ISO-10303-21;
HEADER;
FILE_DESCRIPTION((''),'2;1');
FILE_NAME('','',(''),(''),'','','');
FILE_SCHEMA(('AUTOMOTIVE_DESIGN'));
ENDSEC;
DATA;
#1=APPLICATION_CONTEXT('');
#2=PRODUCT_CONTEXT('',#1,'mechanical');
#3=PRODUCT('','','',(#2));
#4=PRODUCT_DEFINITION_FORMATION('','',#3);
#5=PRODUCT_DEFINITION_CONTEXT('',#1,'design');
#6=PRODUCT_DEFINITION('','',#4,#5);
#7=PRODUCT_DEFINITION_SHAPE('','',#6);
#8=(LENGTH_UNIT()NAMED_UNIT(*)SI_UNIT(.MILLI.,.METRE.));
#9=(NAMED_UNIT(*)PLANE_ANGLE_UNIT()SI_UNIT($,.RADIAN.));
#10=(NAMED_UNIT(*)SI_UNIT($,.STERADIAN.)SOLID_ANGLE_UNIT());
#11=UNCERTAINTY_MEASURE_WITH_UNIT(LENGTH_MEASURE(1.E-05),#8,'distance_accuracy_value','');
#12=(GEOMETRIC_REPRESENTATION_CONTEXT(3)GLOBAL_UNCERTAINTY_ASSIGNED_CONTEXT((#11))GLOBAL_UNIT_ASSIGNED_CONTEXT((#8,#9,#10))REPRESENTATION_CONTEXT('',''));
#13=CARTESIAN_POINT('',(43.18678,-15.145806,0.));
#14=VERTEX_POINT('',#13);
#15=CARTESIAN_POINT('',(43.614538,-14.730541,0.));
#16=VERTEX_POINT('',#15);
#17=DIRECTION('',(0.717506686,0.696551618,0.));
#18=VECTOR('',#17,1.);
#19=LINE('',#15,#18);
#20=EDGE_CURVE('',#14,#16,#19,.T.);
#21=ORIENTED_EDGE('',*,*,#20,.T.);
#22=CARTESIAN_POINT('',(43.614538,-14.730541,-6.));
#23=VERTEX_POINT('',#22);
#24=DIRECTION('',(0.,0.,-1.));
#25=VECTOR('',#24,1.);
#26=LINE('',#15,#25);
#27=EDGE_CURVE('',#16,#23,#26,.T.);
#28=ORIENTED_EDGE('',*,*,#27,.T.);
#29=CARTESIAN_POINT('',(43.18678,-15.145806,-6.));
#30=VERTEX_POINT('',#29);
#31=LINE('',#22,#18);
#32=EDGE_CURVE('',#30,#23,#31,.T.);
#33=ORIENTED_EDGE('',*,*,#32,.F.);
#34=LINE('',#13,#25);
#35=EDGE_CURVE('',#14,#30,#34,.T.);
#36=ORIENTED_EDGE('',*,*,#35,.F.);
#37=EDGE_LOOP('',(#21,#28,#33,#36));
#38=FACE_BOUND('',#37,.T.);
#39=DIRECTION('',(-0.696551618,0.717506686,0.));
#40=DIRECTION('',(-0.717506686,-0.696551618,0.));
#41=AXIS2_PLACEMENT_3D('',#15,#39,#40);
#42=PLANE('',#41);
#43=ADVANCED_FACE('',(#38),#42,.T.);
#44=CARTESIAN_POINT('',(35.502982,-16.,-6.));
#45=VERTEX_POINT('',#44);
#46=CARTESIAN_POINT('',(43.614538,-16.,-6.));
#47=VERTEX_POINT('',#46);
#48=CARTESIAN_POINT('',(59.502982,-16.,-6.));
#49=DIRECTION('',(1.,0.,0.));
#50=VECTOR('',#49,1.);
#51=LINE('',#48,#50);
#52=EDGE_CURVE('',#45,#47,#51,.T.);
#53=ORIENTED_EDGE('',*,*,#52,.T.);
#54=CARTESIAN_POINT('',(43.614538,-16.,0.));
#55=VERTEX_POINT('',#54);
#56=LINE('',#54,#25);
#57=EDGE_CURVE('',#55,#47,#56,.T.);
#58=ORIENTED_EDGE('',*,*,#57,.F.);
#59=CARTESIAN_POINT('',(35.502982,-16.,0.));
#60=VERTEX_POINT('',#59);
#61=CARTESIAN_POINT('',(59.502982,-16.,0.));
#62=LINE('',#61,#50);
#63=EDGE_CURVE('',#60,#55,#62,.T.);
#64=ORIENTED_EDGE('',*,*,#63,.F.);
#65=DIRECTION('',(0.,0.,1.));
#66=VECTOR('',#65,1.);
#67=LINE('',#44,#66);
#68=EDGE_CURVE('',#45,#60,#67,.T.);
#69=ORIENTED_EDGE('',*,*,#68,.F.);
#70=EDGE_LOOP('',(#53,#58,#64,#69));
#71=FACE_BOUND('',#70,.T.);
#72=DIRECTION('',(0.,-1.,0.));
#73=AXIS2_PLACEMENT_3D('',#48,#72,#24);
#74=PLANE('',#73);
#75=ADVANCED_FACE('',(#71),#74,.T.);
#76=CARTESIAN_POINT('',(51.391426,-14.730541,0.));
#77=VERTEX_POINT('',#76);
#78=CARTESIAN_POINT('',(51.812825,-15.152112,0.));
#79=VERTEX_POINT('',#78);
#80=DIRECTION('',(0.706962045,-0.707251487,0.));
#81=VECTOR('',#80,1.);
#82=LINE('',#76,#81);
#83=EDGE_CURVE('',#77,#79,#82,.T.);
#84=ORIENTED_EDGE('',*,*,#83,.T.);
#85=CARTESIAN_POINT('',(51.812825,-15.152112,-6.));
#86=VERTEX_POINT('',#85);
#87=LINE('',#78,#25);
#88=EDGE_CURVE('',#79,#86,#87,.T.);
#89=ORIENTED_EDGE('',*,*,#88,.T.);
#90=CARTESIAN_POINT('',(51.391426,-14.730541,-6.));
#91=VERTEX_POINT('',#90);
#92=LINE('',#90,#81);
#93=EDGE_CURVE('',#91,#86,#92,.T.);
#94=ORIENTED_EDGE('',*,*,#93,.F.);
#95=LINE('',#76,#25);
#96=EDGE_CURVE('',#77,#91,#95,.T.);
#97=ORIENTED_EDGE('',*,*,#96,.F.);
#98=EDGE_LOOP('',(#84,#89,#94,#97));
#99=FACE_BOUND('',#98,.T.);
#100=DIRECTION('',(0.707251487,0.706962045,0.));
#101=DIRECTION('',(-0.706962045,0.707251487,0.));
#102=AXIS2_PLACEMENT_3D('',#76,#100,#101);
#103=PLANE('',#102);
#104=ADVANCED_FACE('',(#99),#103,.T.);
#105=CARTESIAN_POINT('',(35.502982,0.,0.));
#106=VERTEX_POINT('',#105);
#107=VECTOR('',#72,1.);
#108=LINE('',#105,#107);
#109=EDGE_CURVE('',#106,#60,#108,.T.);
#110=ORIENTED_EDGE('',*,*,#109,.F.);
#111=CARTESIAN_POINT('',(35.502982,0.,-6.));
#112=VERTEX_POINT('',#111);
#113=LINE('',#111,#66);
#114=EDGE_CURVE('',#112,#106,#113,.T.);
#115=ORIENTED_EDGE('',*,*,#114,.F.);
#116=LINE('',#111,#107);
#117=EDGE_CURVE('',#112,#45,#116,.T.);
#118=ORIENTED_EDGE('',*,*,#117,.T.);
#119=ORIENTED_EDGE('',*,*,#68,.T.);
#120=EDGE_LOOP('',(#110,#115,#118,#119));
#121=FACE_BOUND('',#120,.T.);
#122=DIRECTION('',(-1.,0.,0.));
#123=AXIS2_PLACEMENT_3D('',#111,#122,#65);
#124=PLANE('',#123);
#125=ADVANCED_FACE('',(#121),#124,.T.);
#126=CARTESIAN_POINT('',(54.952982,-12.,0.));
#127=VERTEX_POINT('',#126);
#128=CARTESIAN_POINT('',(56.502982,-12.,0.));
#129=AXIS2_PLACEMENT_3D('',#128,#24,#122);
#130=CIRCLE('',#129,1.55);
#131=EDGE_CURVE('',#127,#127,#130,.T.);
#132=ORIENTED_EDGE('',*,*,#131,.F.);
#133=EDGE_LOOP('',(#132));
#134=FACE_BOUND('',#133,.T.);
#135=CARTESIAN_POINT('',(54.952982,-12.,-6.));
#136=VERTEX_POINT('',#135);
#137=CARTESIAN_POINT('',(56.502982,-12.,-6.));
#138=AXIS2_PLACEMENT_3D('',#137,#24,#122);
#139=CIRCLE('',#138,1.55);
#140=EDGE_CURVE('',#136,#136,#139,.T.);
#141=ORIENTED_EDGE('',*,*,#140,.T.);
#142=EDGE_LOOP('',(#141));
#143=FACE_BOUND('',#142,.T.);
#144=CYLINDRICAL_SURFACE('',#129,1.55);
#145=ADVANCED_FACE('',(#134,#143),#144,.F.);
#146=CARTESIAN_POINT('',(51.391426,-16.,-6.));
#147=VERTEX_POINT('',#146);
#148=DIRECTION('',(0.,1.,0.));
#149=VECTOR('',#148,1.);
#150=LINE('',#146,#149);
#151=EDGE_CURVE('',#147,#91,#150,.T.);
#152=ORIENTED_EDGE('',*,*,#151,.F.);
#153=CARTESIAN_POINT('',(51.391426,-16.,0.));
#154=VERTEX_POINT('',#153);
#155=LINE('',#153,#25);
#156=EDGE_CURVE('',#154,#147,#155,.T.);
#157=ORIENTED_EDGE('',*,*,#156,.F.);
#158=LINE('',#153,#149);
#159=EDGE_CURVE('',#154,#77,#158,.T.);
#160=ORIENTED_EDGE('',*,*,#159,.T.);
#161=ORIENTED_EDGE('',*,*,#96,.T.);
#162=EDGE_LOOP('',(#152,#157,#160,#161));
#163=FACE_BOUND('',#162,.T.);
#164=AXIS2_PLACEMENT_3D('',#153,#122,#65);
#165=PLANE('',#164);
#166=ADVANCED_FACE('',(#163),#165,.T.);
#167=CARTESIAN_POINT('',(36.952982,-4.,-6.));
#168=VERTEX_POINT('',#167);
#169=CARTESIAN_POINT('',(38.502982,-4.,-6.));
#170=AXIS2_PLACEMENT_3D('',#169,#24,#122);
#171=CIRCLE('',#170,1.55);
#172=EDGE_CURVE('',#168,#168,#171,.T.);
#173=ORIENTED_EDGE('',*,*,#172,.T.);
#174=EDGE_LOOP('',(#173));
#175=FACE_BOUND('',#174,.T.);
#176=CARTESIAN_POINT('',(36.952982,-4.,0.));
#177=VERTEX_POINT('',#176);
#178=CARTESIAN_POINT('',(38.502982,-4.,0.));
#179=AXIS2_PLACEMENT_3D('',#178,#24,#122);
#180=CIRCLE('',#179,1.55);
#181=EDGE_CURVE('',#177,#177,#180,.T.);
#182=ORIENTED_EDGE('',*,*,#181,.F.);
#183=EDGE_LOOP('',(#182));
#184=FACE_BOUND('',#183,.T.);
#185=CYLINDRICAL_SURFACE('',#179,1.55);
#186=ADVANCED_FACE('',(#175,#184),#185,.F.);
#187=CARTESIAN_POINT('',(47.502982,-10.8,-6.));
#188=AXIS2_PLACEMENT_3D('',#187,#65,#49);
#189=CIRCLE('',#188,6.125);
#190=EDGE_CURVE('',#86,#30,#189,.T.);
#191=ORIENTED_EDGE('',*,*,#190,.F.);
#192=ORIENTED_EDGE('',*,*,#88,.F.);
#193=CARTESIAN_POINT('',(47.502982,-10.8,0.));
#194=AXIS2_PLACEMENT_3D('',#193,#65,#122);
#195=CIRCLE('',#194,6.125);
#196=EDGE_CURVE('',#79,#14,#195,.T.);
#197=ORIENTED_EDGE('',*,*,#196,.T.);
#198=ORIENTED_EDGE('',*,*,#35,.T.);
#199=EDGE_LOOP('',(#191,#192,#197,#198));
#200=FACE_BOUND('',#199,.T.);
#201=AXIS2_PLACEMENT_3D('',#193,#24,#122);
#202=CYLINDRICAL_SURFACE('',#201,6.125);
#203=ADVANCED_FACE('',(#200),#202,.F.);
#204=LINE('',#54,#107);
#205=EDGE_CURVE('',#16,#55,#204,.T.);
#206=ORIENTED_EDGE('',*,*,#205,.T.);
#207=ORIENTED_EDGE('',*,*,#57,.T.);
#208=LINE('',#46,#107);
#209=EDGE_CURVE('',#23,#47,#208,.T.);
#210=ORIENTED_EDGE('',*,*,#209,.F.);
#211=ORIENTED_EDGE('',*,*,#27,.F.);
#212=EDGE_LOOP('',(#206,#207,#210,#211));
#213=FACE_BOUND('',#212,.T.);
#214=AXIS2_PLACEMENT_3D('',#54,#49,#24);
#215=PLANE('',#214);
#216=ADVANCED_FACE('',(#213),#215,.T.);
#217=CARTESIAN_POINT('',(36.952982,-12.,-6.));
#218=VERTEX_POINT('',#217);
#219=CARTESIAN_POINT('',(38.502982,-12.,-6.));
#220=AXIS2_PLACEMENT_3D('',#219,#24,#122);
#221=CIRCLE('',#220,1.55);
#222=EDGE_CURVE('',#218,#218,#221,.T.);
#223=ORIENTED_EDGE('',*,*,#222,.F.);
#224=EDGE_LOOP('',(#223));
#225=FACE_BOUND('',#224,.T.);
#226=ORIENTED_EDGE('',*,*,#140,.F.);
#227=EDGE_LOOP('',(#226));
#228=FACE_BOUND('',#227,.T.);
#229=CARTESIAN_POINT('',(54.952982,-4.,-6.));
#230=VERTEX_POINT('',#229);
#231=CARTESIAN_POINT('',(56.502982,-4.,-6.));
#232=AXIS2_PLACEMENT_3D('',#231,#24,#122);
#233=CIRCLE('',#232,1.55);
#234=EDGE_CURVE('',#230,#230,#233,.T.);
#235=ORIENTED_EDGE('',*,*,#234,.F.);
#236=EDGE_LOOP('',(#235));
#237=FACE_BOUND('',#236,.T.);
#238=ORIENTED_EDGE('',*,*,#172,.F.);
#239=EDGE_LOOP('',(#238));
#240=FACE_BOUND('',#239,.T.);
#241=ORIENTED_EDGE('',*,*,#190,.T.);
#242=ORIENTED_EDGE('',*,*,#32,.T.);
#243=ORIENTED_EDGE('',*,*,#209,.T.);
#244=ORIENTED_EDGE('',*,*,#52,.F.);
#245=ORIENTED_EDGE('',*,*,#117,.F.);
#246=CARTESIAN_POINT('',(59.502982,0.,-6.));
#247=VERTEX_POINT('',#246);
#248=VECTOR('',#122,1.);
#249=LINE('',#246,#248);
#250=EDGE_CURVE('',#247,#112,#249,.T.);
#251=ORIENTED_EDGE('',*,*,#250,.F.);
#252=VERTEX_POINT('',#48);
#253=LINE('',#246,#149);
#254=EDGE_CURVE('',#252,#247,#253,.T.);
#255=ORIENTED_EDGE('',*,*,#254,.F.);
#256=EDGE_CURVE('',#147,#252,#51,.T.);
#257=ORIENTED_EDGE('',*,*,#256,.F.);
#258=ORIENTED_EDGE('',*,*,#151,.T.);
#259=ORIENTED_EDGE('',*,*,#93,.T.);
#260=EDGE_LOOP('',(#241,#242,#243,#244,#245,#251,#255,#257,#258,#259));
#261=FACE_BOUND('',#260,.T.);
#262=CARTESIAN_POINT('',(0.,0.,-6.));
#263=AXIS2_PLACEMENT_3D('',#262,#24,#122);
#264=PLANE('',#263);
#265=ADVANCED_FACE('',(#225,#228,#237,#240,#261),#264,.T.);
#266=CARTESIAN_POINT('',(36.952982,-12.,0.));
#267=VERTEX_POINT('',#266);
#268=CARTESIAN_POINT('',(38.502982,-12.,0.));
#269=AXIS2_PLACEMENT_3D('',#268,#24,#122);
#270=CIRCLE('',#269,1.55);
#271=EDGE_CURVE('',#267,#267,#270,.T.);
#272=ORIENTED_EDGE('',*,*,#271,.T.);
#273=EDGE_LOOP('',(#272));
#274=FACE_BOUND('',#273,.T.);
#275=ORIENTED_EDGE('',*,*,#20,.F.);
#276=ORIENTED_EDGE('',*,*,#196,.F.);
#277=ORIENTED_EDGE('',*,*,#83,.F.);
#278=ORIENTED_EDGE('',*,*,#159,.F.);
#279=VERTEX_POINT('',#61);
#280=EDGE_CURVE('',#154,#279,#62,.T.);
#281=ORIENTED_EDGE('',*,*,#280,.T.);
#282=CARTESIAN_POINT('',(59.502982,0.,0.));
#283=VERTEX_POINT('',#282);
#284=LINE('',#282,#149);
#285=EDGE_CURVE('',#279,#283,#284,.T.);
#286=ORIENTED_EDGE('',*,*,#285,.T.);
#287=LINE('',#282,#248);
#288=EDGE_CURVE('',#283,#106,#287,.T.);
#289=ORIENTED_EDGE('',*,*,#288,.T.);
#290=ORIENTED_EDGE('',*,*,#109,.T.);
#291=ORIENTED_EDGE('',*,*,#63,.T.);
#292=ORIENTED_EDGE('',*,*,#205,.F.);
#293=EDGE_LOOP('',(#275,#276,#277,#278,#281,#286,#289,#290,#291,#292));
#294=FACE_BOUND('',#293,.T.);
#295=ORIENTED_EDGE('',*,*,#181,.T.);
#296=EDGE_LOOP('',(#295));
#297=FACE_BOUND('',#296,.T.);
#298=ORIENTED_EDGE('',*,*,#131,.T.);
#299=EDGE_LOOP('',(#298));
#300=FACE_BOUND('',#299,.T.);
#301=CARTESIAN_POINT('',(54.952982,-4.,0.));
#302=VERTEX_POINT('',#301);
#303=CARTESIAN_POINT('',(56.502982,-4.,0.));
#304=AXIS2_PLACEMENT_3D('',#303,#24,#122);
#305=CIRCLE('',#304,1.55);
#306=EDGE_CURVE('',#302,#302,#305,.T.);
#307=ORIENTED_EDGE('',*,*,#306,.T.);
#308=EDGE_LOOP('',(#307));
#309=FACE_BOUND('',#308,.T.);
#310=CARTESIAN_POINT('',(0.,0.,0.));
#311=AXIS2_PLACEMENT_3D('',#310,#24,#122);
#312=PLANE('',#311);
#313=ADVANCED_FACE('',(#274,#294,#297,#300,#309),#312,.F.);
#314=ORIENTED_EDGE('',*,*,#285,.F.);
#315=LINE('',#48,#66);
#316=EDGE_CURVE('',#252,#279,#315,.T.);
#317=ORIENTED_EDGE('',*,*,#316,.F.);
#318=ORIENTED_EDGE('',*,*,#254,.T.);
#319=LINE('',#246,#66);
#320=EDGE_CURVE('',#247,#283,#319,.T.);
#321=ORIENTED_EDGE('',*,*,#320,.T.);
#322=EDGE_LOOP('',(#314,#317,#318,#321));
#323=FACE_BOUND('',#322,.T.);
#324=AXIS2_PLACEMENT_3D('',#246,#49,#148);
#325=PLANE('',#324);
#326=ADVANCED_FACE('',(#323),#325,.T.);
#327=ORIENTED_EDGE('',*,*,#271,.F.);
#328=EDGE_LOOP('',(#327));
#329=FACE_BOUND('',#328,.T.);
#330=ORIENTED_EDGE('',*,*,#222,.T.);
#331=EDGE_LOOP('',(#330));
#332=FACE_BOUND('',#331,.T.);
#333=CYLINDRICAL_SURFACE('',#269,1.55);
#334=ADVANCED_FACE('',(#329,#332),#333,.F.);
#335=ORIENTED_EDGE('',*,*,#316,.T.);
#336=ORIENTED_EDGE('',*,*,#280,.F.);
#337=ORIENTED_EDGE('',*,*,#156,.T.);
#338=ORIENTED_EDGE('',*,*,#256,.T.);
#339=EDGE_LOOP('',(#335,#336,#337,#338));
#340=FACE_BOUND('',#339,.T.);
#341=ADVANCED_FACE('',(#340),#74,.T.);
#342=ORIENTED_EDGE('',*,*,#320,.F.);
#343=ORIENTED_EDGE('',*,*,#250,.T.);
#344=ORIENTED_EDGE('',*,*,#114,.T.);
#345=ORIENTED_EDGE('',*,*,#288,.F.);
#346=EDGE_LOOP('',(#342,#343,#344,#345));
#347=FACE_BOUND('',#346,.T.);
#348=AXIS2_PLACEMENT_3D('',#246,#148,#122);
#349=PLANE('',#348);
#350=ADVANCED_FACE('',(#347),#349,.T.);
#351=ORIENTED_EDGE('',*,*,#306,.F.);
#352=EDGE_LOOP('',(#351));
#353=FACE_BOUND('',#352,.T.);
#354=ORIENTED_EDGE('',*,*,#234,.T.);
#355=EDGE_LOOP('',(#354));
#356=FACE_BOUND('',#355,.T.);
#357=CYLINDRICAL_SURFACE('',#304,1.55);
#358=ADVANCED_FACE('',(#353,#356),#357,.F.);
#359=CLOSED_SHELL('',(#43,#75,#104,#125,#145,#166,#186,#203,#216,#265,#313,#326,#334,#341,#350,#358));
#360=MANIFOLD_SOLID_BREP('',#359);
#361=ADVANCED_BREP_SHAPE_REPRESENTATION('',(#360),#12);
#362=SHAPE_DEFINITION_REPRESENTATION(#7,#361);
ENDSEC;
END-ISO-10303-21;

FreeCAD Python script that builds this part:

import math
import FreeCAD as App
import Part
import Sketcher

V = App.Vector


def add_polygon(sketch, points):
    """Adds a closed chain of lines whose ends are joined by coincident constraints."""
    first, n = sketch.GeometryCount, len(points)
    for a, b in zip(points, points[1:] + points[:1]):
        sketch.addGeometry(Part.LineSegment(App.Vector(*a, 0), App.Vector(*b, 0)), False)
    for i in range(n):
        sketch.addConstraint(Sketcher.Constraint("Coincident", first + i, 2, first + (i + 1) % n, 1))

doc = App.newDocument("Part")
body = doc.addObject("PartDesign::Body", "Body")

sketch1 = body.newObject("Sketcher::SketchObject", "Sketch")
sketch1.AttachmentSupport = (doc.getObject("XY_Plane"), [""])
sketch1.MapMode = "FlatFace"
add_polygon(sketch1, [(36, 0), (36, -16), (60, -16), (60, 0)])
sketch1.addConstraint(Sketcher.Constraint("Vertical", 0))
sketch1.addConstraint(Sketcher.Constraint("Horizontal", 1))
sketch1.addConstraint(Sketcher.Constraint("Vertical", 2))
sketch1.addConstraint(Sketcher.Constraint("Horizontal", 3))
sketch1.addConstraint(Sketcher.Constraint("PointOnObject", 2, 2, -1))
sketch1.addConstraint(Sketcher.Constraint("DistanceX", 1, 1, 1, 2, 24.0))
sketch1.addConstraint(Sketcher.Constraint("DistanceY", 0, 2, 0, 1, 16.0))
sketch1.addConstraint(Sketcher.Constraint("DistanceX", -1, 1, 0, 2, 35.502982))
pad1 = body.newObject("PartDesign::Pad", "Pad")
pad1.Profile = sketch1
pad1.Length = 6
pad1.Reversed = True

sketch2 = body.newObject("Sketcher::SketchObject", "Sketch001")
sketch2.AttachmentSupport = (doc.getObject("XY_Plane"), [""])
sketch2.MapMode = "FlatFace"
sketch2.AttachmentOffset = App.Placement(V(0, 0, -6), App.Rotation())
sketch2.addGeometry(Part.LineSegment(V(43.61, -14.73, 0), V(43.61, -16, 0)), False)
sketch2.addGeometry(Part.LineSegment(V(43.61, -16, 0), V(51.39, -16, 0)), False)
sketch2.addGeometry(Part.LineSegment(V(51.39, -16, 0), V(51.39, -14.73, 0)), False)
sketch2.addGeometry(Part.LineSegment(V(51.39, -14.73, 0), V(51.81, -15.15, 0)), False)
sketch2.addGeometry(Part.ArcOfCircle(Part.Circle(V(47.5, -10.8, 0), V(0, 0, 1), 6.12), math.radians(-45.28), math.radians(-43.83)), False)
sketch2.addGeometry(Part.ArcOfCircle(Part.Circle(V(47.5, -10.8, 0), V(0, 0, 1), 6.12), math.radians(-44), math.radians(224)), False)
sketch2.addGeometry(Part.ArcOfCircle(Part.Circle(V(47.5, -10.8, 0), V(0, 0, 1), 6.12), math.radians(-136.17), math.radians(-134.8)), False)
sketch2.addGeometry(Part.LineSegment(V(43.19, -15.15, 0), V(43.61, -14.73, 0)), False)
sketch2.addConstraint(Sketcher.Constraint("Coincident", 0, 2, 1, 1))
sketch2.addConstraint(Sketcher.Constraint("Coincident", 1, 2, 2, 1))
sketch2.addConstraint(Sketcher.Constraint("Coincident", 2, 2, 3, 1))
sketch2.addConstraint(Sketcher.Constraint("Coincident", 3, 2, 4, 1))
sketch2.addConstraint(Sketcher.Constraint("Tangent", 4, 2, 5, 1))
sketch2.addConstraint(Sketcher.Constraint("Tangent", 5, 2, 6, 1))
sketch2.addConstraint(Sketcher.Constraint("Coincident", 6, 2, 7, 1))
sketch2.addConstraint(Sketcher.Constraint("Coincident", 7, 2, 0, 1))
sketch2.addConstraint(Sketcher.Constraint("Vertical", 0))
sketch2.addConstraint(Sketcher.Constraint("Horizontal", 1))
sketch2.addConstraint(Sketcher.Constraint("Vertical", 2))
sketch2.addConstraint(Sketcher.Constraint("Coincident", 6, 3, 4, 3))
sketch2.addConstraint(Sketcher.Constraint("Horizontal", 4, 2, 5, 2))
sketch2.addConstraint(Sketcher.Constraint("Horizontal", 2, 2, 7, 2))
sketch2.addConstraint(Sketcher.Constraint("DistanceY", 0, 2, -1, 1, 16.0))
sketch2.addConstraint(Sketcher.Constraint("Radius", 4, 6.124999))
sketch2.addConstraint(Sketcher.Constraint("DistanceY", 4, 3, -1, 1, 10.800001))
sketch2.addConstraint(Sketcher.Constraint("DistanceX", 1, 1, 1, 2, 7.776889))
sketch2.addConstraint(Sketcher.Constraint("DistanceY", 0, 2, 0, 1, 1.269459))
sketch2.addConstraint(Sketcher.Constraint("DistanceX", 2, 2, 3, 2, 0.421398))
sketch2.addConstraint(Sketcher.Constraint("DistanceY", 6, 2, 6, 3, 4.345801))
sketch2.addConstraint(Sketcher.Constraint("Distance", 3, 0.596069))
sketch2.addConstraint(Sketcher.Constraint("DistanceX", -1, 1, 4, 2, 51.92177))
sketch2.addConstraint(Sketcher.Constraint("DistanceX", -1, 1, 6, 2, 43.18678))
pocket1 = body.newObject("PartDesign::Pocket", "Pocket")
pocket1.Profile = sketch2
pocket1.Length = 6
pocket1.Reversed = True

sketch3 = body.newObject("Sketcher::SketchObject", "Sketch002")
sketch3.AttachmentSupport = (doc.getObject("XY_Plane"), [""])
sketch3.MapMode = "FlatFace"
sketch3.AttachmentOffset = App.Placement(V(0, 0, -6), App.Rotation())
sketch3.addGeometry(Part.Circle(V(56.5, -12, 0), V(0, 0, 1), 1.6), False)
sketch3.addGeometry(Part.Circle(V(56.5, -4, 0), V(0, 0, 1), 1.6), False)
sketch3.addGeometry(Part.Circle(V(38.5, -4, 0), V(0, 0, 1), 1.6), False)
sketch3.addGeometry(Part.Circle(V(38.5, -12, 0), V(0, 0, 1), 1.6), False)
sketch3.addConstraint(Sketcher.Constraint("Equal", 0, 1))
sketch3.addConstraint(Sketcher.Constraint("Equal", 1, 2))
sketch3.addConstraint(Sketcher.Constraint("Equal", 2, 3))
sketch3.addConstraint(Sketcher.Constraint("Horizontal", 1, 3, 2, 3))
sketch3.addConstraint(Sketcher.Constraint("Horizontal", 0, 3, 3, 3))
sketch3.addConstraint(Sketcher.Constraint("Vertical", 0, 3, 1, 3))
sketch3.addConstraint(Sketcher.Constraint("Vertical", 2, 3, 3, 3))
sketch3.addConstraint(Sketcher.Constraint("Diameter", 0, 3.1))
sketch3.addConstraint(Sketcher.Constraint("DistanceY", 0, 3, -1, 1, 12.0))
sketch3.addConstraint(Sketcher.Constraint("DistanceY", 1, 3, -1, 1, 4.0))
sketch3.addConstraint(Sketcher.Constraint("DistanceX", 2, 3, 1, 3, 18.0))
sketch3.addConstraint(Sketcher.Constraint("DistanceX", -1, 1, 0, 3, 56.502982))
pocket2 = body.newObject("PartDesign::Pocket", "Pocket001")
pocket2.Profile = sketch3
pocket2.Type = "ThroughAll"
pocket2.Reversed = True

doc.recompute()
